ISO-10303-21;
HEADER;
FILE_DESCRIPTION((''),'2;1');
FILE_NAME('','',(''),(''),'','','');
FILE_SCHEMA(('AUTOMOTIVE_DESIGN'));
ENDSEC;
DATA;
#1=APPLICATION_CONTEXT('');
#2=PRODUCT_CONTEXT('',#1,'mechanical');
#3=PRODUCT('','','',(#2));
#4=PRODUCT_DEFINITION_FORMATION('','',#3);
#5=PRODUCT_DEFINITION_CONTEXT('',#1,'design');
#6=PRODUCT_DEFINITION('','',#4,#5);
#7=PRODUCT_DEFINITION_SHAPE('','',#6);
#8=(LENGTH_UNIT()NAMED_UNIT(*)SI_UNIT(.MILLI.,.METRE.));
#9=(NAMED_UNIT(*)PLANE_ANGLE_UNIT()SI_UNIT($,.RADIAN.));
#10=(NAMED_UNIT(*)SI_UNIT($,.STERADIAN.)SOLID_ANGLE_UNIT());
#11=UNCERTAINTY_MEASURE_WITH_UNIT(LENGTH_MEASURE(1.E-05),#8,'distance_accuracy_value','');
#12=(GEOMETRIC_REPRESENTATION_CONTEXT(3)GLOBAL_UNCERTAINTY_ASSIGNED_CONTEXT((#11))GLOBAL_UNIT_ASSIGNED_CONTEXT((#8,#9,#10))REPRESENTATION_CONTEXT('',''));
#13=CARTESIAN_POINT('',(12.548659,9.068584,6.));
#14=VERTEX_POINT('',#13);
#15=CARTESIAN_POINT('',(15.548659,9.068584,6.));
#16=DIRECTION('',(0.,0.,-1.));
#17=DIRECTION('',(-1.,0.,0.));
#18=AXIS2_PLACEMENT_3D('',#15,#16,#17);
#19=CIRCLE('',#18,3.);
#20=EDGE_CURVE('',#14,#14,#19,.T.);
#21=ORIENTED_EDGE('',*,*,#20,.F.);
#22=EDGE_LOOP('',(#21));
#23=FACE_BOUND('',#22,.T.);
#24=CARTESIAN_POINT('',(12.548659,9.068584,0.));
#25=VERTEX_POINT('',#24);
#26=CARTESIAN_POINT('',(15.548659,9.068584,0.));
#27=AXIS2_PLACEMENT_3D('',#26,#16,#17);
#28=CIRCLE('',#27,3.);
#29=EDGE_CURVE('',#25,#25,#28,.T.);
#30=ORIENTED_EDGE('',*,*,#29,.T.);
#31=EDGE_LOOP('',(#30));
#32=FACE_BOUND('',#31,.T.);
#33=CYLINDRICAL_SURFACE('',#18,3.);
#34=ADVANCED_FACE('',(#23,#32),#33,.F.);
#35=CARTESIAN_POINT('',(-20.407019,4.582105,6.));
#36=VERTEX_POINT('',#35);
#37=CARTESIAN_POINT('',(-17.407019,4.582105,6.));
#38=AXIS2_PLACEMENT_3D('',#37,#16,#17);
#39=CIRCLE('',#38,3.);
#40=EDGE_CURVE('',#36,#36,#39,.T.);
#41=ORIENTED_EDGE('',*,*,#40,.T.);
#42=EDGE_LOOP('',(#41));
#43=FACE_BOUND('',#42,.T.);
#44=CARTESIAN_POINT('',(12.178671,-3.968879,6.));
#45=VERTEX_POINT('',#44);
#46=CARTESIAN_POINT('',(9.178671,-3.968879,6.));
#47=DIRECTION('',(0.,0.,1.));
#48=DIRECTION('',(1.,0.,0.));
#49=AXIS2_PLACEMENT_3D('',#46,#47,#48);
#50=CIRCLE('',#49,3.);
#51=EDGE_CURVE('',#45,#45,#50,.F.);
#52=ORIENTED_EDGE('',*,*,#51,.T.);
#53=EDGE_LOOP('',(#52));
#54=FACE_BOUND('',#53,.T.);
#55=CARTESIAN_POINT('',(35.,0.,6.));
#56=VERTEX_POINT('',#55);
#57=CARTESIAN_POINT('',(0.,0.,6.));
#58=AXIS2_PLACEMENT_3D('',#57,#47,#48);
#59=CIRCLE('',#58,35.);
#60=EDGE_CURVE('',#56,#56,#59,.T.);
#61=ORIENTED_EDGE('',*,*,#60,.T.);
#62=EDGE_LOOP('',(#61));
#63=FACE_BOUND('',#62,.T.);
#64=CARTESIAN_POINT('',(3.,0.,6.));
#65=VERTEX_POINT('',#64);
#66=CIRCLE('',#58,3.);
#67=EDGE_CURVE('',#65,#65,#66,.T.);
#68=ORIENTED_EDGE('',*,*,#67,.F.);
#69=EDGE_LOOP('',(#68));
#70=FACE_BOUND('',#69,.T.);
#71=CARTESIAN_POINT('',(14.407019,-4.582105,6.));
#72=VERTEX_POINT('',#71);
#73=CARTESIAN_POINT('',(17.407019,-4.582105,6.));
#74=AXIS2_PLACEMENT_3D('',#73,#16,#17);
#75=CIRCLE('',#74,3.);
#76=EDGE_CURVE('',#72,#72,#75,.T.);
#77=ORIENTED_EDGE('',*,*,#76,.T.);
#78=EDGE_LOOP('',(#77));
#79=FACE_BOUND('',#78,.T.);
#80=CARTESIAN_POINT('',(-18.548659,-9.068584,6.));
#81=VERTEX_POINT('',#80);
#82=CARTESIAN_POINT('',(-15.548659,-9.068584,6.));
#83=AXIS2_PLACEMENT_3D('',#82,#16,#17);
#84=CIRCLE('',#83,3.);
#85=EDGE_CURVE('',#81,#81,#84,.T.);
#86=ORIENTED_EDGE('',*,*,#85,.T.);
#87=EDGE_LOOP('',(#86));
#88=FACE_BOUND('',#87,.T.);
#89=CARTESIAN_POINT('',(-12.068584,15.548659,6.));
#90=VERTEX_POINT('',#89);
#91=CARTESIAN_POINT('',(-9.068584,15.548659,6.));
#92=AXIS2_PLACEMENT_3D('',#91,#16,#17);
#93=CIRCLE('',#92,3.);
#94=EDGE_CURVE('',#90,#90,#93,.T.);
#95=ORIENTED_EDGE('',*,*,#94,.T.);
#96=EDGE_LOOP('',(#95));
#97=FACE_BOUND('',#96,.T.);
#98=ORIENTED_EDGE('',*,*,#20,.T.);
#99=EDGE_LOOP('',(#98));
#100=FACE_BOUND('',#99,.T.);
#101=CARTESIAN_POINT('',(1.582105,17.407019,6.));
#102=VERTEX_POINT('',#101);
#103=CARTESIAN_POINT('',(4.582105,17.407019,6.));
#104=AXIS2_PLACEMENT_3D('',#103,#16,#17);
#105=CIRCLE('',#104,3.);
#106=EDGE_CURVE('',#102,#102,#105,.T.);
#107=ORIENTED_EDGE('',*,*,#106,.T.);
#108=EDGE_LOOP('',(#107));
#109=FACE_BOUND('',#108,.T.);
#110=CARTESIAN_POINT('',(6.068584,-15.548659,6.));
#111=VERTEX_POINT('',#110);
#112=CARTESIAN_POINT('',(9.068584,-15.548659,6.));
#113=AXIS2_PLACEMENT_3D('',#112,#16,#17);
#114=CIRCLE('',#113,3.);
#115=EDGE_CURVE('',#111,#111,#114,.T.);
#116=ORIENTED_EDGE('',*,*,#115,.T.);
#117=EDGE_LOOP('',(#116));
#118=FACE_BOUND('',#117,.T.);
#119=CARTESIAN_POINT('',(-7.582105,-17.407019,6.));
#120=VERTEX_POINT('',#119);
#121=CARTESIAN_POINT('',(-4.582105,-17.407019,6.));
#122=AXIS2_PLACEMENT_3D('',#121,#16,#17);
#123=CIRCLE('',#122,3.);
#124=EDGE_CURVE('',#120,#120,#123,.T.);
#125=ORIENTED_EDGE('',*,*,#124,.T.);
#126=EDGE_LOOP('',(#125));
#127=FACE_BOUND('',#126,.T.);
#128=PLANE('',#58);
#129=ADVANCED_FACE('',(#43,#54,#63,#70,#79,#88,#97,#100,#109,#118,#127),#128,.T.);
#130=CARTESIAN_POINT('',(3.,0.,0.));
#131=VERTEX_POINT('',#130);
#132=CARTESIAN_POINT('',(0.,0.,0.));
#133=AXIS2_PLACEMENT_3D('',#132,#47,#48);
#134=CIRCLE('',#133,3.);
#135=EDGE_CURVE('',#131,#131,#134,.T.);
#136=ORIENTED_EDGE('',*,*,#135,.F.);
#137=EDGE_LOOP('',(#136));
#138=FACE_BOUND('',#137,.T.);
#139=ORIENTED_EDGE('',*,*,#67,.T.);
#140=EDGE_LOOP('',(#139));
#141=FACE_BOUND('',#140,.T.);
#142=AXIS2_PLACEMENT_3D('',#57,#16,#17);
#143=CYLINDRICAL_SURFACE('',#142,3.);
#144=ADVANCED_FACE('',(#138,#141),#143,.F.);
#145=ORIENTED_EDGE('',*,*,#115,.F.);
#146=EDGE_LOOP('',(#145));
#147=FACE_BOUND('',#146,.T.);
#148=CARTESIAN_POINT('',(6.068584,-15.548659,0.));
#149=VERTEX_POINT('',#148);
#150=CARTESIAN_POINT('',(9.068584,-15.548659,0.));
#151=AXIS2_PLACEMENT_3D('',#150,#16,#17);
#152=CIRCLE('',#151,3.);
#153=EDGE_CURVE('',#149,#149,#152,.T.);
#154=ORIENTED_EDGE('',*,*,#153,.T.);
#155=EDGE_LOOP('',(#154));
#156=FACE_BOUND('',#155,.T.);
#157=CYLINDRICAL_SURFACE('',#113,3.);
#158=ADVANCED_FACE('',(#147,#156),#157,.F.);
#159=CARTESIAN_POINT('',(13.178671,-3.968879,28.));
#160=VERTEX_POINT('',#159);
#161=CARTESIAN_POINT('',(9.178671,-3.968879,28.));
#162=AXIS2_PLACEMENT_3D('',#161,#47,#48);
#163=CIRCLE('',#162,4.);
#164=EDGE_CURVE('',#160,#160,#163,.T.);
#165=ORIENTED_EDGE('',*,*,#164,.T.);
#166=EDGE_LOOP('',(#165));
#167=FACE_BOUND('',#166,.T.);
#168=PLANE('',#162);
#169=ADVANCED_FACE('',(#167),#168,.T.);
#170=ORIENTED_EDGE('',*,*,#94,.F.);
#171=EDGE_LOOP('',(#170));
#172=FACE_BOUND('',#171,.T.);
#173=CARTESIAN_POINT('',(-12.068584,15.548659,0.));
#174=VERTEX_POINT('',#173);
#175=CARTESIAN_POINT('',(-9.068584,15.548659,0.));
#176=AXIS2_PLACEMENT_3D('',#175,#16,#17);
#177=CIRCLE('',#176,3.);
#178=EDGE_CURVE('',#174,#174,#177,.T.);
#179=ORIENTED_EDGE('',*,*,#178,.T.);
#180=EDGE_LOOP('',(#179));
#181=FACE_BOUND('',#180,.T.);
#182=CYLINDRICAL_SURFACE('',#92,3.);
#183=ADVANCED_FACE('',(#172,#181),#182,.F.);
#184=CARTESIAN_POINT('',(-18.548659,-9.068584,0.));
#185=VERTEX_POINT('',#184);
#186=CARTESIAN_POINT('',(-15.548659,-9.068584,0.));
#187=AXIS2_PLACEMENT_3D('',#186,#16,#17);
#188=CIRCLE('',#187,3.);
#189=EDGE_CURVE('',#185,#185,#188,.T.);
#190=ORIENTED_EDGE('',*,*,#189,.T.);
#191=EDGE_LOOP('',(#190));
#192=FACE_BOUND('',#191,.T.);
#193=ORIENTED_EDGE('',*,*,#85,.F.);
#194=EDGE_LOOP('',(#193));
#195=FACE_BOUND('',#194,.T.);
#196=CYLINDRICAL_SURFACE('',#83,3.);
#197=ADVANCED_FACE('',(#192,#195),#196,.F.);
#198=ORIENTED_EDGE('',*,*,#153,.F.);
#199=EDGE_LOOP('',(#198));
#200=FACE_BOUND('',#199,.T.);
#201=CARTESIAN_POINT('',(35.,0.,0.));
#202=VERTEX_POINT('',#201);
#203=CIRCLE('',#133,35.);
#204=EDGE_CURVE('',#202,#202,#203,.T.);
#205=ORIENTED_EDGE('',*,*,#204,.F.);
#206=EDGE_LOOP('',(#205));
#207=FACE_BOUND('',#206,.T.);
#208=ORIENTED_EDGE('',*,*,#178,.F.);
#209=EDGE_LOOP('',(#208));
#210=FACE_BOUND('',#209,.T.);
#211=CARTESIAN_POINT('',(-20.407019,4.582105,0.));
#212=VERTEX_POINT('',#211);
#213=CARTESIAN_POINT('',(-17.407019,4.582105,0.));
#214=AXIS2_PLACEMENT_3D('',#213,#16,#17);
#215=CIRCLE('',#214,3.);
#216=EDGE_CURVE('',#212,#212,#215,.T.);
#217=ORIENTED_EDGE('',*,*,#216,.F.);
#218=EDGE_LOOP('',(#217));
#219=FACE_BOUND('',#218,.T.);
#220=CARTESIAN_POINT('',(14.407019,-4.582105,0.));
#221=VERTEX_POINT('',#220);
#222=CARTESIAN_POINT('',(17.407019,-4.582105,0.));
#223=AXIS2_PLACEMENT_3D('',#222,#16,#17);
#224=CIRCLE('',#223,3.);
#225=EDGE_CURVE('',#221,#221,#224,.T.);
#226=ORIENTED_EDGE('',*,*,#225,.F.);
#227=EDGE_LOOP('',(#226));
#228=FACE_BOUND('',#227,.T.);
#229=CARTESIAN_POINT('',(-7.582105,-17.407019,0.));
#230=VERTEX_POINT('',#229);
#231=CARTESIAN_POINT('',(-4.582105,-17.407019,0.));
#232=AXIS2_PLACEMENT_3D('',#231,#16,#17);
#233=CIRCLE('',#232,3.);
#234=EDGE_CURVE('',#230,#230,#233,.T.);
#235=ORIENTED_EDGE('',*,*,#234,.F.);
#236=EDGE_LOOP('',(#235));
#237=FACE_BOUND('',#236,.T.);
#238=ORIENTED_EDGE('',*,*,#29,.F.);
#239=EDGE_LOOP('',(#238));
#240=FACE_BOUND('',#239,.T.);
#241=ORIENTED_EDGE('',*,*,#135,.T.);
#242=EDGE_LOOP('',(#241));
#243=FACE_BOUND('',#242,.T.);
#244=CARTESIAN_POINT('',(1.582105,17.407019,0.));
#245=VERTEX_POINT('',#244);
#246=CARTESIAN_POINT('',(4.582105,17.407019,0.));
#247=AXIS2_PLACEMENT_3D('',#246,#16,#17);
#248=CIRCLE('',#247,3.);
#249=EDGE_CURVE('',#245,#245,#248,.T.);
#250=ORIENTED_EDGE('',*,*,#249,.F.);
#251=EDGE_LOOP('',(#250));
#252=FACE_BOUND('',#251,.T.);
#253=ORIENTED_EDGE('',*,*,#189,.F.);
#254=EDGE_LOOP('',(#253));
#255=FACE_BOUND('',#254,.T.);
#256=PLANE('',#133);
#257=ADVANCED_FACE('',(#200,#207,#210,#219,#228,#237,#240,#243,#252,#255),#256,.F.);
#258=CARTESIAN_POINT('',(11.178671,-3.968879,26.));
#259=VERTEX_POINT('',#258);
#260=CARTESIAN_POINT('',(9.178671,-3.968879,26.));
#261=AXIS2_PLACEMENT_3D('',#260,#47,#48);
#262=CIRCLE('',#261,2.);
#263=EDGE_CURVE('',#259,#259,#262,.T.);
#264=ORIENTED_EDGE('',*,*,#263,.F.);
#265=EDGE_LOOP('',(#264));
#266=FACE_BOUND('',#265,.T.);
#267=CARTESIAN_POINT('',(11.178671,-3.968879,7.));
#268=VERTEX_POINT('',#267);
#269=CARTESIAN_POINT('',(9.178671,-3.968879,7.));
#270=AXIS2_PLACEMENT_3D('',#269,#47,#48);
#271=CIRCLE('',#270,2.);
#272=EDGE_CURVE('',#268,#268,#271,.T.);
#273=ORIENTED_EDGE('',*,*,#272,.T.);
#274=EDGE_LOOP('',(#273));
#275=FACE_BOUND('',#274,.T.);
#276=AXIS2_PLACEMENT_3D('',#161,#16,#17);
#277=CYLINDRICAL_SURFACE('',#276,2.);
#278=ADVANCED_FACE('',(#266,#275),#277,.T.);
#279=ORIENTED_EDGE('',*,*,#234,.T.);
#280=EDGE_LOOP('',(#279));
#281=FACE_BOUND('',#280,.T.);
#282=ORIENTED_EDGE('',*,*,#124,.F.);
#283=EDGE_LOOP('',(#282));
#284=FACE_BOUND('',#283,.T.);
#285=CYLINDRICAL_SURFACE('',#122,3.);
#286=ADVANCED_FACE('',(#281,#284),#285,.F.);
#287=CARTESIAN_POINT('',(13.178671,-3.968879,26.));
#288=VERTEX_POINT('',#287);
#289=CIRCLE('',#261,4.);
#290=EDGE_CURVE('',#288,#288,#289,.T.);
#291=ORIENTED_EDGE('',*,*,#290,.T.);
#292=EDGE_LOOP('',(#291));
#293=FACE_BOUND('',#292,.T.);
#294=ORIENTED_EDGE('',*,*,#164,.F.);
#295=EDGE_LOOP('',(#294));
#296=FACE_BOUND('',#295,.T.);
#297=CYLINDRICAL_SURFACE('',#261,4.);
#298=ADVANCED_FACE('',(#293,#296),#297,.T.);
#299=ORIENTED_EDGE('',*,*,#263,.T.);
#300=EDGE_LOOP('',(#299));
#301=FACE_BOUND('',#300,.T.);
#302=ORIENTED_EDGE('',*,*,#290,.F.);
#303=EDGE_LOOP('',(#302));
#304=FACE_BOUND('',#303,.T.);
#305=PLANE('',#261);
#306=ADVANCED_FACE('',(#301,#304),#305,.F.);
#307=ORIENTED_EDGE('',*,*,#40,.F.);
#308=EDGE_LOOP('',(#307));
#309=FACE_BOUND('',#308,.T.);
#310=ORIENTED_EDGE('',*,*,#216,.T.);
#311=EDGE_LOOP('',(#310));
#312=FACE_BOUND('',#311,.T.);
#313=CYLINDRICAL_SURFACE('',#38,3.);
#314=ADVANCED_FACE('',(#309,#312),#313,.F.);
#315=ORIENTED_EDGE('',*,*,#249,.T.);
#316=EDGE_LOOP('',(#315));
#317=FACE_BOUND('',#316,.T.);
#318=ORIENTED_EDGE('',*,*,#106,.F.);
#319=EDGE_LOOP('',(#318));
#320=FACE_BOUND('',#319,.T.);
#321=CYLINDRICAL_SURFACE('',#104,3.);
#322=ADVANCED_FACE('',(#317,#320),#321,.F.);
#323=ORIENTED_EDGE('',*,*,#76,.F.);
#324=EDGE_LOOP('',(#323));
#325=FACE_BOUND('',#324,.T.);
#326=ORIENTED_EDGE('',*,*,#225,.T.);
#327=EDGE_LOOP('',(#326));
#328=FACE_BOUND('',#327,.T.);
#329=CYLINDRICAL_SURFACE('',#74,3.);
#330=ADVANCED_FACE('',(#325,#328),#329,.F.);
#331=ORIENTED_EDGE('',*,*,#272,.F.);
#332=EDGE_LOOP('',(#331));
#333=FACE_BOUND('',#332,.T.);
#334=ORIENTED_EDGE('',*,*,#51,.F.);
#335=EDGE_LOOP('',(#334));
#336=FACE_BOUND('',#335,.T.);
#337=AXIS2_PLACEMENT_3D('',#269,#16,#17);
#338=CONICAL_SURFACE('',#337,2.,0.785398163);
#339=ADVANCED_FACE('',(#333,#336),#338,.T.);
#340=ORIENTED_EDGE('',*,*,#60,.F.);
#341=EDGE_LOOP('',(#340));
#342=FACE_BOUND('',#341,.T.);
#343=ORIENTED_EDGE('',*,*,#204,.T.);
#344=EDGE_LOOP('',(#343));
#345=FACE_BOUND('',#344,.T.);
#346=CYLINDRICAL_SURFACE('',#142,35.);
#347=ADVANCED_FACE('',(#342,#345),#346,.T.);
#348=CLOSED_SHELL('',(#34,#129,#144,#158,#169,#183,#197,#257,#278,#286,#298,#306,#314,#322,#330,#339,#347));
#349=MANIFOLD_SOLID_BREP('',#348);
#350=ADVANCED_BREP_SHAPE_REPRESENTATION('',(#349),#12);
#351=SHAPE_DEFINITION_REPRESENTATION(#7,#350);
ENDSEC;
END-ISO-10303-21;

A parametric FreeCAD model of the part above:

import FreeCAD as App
import Part
import Sketcher

V = App.Vector


def edges_at(feature, points):
    """Names of the edges that pass closest to the given points."""
    edges = feature.Shape.Edges
    near = lambda p: min(range(len(edges)), key=lambda i: edges[i].distToShape(Part.Vertex(*p))[0])
    return sorted({f"Edge{near(p) + 1}" for p in points})

doc = App.newDocument("Part")
body = doc.addObject("PartDesign::Body", "Body")

# Sketch on XY plane
sketch1 = body.newObject("Sketcher::SketchObject", "Sketch")
sketch1.AttachmentSupport = (doc.getObject("XY_Plane"), [""])
sketch1.MapMode = "FlatFace"
sketch1.addGeometry([
    Part.Circle(V(0, 0, 0), V(0, 0, 1), 35),
    Part.Circle(V(0, 0, 0), V(0, 0, 1), 3),
], False)
sketch1.addConstraint([
    Sketcher.Constraint("Coincident", 0, 3, -1, 1),
    Sketcher.Constraint("Coincident", 1, 3, -1, 1),
    Sketcher.Constraint("Diameter", 0, 70.0),
    Sketcher.Constraint("Diameter", 1, 6.0),
])
pad1 = body.newObject("PartDesign::Pad", "Pad")
pad1.Profile = sketch1
pad1.Length = 6

# Sketch on XY plane
sketch2 = body.newObject("Sketcher::SketchObject", "Sketch001")
sketch2.AttachmentSupport = (doc.getObject("XY_Plane"), [""])
sketch2.MapMode = "FlatFace"
sketch2.addGeometry([
    Part.Circle(V(4.6, 17.4, 0), V(0, 0, 1), 3),  # 0
    Part.Circle(V(-9.1, 15.5, 0), V(0, 0, 1), 3),  # 1
    Part.Circle(V(-17.4, 4.6, 0), V(0, 0, 1), 3),  # 2
    Part.Circle(V(-15.5, -9.1, 0), V(0, 0, 1), 3),  # 3
    Part.Circle(V(-4.6, -17.4, 0), V(0, 0, 1), 3),  # 4
    Part.Circle(V(9.1, -15.5, 0), V(0, 0, 1), 3),  # 5
    Part.Circle(V(17.4, -4.6, 0), V(0, 0, 1), 3),  # 6
    Part.Circle(V(15.5, 9.1, 0), V(0, 0, 1), 3),  # 7
], False)
sketch2.addConstraint([
    Sketcher.Constraint("Equal", 0, 1),
    Sketcher.Constraint("Equal", 1, 2),
    Sketcher.Constraint("Equal", 2, 3),
    Sketcher.Constraint("Equal", 3, 4),
    Sketcher.Constraint("Equal", 4, 5),
    Sketcher.Constraint("Equal", 5, 6),
    Sketcher.Constraint("Equal", 6, 7),
    Sketcher.Constraint("Symmetric", 0, 3, 4, 3, -1, 1),
    Sketcher.Constraint("Symmetric", 1, 3, 5, 3, -1, 1),
    Sketcher.Constraint("Symmetric", 2, 3, 6, 3, -1, 1),
    Sketcher.Constraint("Symmetric", 3, 3, 7, 3, -1, 1),
    Sketcher.Constraint("Diameter", 0, 6.0),
    Sketcher.Constraint("DistanceY", -1, 1, 0, 3, 17.407019),
    Sketcher.Constraint("DistanceY", -1, 1, 1, 3, 15.548659),
    Sketcher.Constraint("DistanceX", 2, 3, -1, 1, 17.407019),
    Sketcher.Constraint("DistanceX", 3, 3, -1, 1, 15.548659),
    Sketcher.Constraint("DistanceX", 1, 3, 0, 3, 13.650689),
    Sketcher.Constraint("DistanceY", 3, 3, 2, 3, 13.650689),
    Sketcher.Constraint("DistanceX", 1, 3, 4, 3, 4.486478),
    Sketcher.Constraint("DistanceY", 3, 3, 6, 3, 4.486478),
])
pocket1 = body.newObject("PartDesign::Pocket", "Pocket")
pocket1.Profile = sketch2
pocket1.Type = "ThroughAll"
pocket1.Reversed = True

# Sketch on XY plane
sketch3 = body.newObject("Sketcher::SketchObject", "Sketch002")
sketch3.AttachmentSupport = (doc.getObject("XY_Plane"), [""])
sketch3.MapMode = "FlatFace"
sketch3.AttachmentOffset = App.Placement(V(0, 0, 6), App.Rotation())
sketch3.addGeometry(Part.Circle(V(9.2, -4, 0), V(0, 0, 1), 2), False)
sketch3.addConstraint([
    Sketcher.Constraint("Diameter", 0, 4.0),
    Sketcher.Constraint("DistanceX", -1, 1, 0, 3, 9.178671),
    Sketcher.Constraint("DistanceY", 0, 3, -1, 1, 3.968879),
])
pad2 = body.newObject("PartDesign::Pad", "Pad001")
pad2.Profile = sketch3
pad2.Length = 22

# Sketch on XY plane
sketch4 = body.newObject("Sketcher::SketchObject", "Sketch003")
sketch4.AttachmentSupport = (doc.getObject("XY_Plane"), [""])
sketch4.MapMode = "FlatFace"
sketch4.AttachmentOffset = App.Placement(V(0, 0, 28), App.Rotation())
sketch4.addGeometry(Part.Circle(V(9.2, -4, 0), V(0, 0, 1), 4), False)
sketch4.addConstraint([
    Sketcher.Constraint("Diameter", 0, 8.0),
    Sketcher.Constraint("DistanceX", -1, 1, 0, 3, 9.178671),
    Sketcher.Constraint("DistanceY", 0, 3, -1, 1, 3.968879),
])
pad3 = body.newObject("PartDesign::Pad", "Pad002")
pad3.Profile = sketch4
pad3.Length = 2
pad3.Reversed = True
doc.recompute()

chamfer = body.newObject("PartDesign::Chamfer", "Chamfer")
chamfer.Base = (pad3, edges_at(pad3, [(7.179, -3.969, 6)]))
chamfer.Size = 1

doc.recompute()
